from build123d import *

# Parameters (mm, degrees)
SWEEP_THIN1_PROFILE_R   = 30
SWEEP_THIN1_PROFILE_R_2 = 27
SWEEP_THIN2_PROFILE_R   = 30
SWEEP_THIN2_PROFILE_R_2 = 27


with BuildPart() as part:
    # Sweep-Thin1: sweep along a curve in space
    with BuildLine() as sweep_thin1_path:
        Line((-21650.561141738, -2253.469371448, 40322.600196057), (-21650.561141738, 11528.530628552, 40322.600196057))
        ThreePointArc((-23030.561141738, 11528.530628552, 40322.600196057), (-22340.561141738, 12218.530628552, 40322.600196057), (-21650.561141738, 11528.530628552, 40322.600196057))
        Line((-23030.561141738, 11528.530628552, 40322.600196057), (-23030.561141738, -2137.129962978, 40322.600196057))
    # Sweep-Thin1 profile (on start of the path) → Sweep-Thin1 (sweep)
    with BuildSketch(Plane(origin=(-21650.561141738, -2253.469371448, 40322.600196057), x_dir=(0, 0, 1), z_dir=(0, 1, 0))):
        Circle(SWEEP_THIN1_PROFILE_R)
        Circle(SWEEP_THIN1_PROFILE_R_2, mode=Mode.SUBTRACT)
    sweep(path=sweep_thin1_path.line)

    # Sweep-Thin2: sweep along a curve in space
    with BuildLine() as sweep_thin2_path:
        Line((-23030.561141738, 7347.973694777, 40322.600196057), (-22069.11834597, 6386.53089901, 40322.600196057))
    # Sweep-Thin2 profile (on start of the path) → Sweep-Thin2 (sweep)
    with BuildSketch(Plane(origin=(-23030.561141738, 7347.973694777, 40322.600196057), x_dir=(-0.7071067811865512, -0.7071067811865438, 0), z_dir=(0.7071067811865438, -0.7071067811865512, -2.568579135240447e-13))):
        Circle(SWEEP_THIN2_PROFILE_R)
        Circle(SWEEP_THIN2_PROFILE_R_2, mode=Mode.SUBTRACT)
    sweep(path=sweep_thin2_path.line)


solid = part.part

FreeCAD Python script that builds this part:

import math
import FreeCAD as App
import Part
import Sketcher
from FreeCAD import Vector
Q = App.Units.Quantity

doc = App.newDocument("Part")
body = doc.addObject("PartDesign::Body", "Body")

# Sketch on XZ plane
sketch1 = doc.addObject("Sketcher::SketchObject", "Sketch")
body.addObject(sketch1)
sketch1.AttachmentSupport = (doc.XZ_Plane, [""])
sketch1.MapMode = "FlatFace"
sketch1.AttachmentOffset = App.Placement(Vector(0, 0, 2253.469371), App.Rotation())
sketch1.addGeometry([
    Part.Circle(Vector(-21651, 40323, 0), Vector(0, 0, 1), 30),
    Part.Circle(Vector(-21651, 40323, 0), Vector(0, 0, 1), 27),
], False)
sketch1.addConstraint([
    Sketcher.Constraint("Coincident", 1, 3, 0, 3),
    Sketcher.Constraint("Diameter", 0, Q("60 mm")),
    Sketcher.Constraint("Diameter", 1, Q("54 mm")),
    Sketcher.Constraint("DistanceX", 0, 3, -1, 1, Q("21650.561142 mm")),
    Sketcher.Constraint("DistanceY", -1, 1, 0, 3, Q("40322.600196 mm")),
])

# Sketch on XY plane
sketch2 = doc.addObject("Sketcher::SketchObject", "Sketch001")
body.addObject(sketch2)
sketch2.AttachmentSupport = (doc.XY_Plane, [""])
sketch2.MapMode = "FlatFace"
sketch2.AttachmentOffset = App.Placement(Vector(0, 0, 40322.600196), App.Rotation())
sketch2.addGeometry([
    Part.LineSegment(Vector(-21651, -2253, 0), Vector(-21651, 11529, 0)),
    Part.ArcOfCircle(Part.Circle(Vector(-22341, 11529, 0), Vector(0, 0, 1), 690), math.radians(0), math.radians(180)),
    Part.LineSegment(Vector(-23031, 11529, 0), Vector(-23031, -2137, 0)),
], False)
sketch2.addConstraint([
    Sketcher.Constraint("Tangent", 0, 2, 1, 1),
    Sketcher.Constraint("Coincident", 1, 2, 2, 1),
    Sketcher.Constraint("Vertical", 0),
    Sketcher.Constraint("Vertical", 2),
    Sketcher.Constraint("Radius", 1, Q("690 mm")),
    Sketcher.Constraint("DistanceY", 0, 1, 0, 2, Q("13782 mm")),
    Sketcher.Constraint("DistanceY", 2, 2, 2, 1, Q("13665.660592 mm")),
    Sketcher.Constraint("DistanceX", 1, 3, -1, 1, Q("22340.561142 mm")),
    Sketcher.Constraint("DistanceY", -1, 1, 1, 3, Q("11528.530629 mm")),
    Sketcher.Constraint("DistanceY", 0, 1, 2, 2, Q("116.339408 mm")),
])
doc.recompute()

additivepipe = doc.addObject("PartDesign::AdditivePipe", "AdditivePipe")
body.addObject(additivepipe)
additivepipe.Profile = sketch1
additivepipe.Spine = (sketch2, ["Edge1", "Edge2", "Edge3"])

# Sketch on an angled plane
sketch3 = doc.addObject("Sketcher::SketchObject", "Sketch002")
body.addObject(sketch3)
sketch3.Placement = App.Placement(Vector(-23030.561142, 7347.973695, 40322.600196), App.Rotation(Vector(-0.707106781, -0.707106781, 0), Vector(0, 0, -0.999999999), Vector(0.707106781, -0.707106781, 0), "ZXY"))
sketch3.addGeometry([
    Part.Circle(Vector(0, 0, 0), Vector(0, 0, 1), 30),
    Part.Circle(Vector(0, 0, 0), Vector(0, 0, 1), 27),
], False)
sketch3.addConstraint([
    Sketcher.Constraint("Coincident", 0, 3, -1, 1),
    Sketcher.Constraint("Coincident", 1, 3, -1, 1),
    Sketcher.Constraint("Diameter", 0, Q("60 mm")),
    Sketcher.Constraint("Diameter", 1, Q("54 mm")),
])

# Sketch on an angled plane
sketch4 = doc.addObject("Sketcher::SketchObject", "Sketch003")
body.addObject(sketch4)
sketch4.Placement = App.Placement(Vector(-7841.293723, -7841.293723, 0), App.Rotation(Vector(0.707106781, -0.707106781, 0), Vector(0, 0, 0.999999999), Vector(-0.707106781, -0.707106781, 0), "ZXY"))
sketch4.addGeometry(Part.LineSegment(Vector(-21481, 40323, 0), Vector(-20121, 40323, 0)), False)
sketch4.addConstraint([
    Sketcher.Constraint("Horizontal", 0),
    Sketcher.Constraint("DistanceX", 0, 1, 0, 2, Q("1359.685441 mm")),
    Sketcher.Constraint("DistanceX", 0, 1, -1, 1, Q("21480.867974 mm")),
    Sketcher.Constraint("DistanceY", -1, 1, 0, 1, Q("40322.600154 mm")),
])
doc.recompute()

additivepipe2 = doc.addObject("PartDesign::AdditivePipe", "AdditivePipe001")
body.addObject(additivepipe2)
additivepipe2.Profile = sketch3
additivepipe2.Spine = (sketch4, ["Edge1"])

doc.recompute()
